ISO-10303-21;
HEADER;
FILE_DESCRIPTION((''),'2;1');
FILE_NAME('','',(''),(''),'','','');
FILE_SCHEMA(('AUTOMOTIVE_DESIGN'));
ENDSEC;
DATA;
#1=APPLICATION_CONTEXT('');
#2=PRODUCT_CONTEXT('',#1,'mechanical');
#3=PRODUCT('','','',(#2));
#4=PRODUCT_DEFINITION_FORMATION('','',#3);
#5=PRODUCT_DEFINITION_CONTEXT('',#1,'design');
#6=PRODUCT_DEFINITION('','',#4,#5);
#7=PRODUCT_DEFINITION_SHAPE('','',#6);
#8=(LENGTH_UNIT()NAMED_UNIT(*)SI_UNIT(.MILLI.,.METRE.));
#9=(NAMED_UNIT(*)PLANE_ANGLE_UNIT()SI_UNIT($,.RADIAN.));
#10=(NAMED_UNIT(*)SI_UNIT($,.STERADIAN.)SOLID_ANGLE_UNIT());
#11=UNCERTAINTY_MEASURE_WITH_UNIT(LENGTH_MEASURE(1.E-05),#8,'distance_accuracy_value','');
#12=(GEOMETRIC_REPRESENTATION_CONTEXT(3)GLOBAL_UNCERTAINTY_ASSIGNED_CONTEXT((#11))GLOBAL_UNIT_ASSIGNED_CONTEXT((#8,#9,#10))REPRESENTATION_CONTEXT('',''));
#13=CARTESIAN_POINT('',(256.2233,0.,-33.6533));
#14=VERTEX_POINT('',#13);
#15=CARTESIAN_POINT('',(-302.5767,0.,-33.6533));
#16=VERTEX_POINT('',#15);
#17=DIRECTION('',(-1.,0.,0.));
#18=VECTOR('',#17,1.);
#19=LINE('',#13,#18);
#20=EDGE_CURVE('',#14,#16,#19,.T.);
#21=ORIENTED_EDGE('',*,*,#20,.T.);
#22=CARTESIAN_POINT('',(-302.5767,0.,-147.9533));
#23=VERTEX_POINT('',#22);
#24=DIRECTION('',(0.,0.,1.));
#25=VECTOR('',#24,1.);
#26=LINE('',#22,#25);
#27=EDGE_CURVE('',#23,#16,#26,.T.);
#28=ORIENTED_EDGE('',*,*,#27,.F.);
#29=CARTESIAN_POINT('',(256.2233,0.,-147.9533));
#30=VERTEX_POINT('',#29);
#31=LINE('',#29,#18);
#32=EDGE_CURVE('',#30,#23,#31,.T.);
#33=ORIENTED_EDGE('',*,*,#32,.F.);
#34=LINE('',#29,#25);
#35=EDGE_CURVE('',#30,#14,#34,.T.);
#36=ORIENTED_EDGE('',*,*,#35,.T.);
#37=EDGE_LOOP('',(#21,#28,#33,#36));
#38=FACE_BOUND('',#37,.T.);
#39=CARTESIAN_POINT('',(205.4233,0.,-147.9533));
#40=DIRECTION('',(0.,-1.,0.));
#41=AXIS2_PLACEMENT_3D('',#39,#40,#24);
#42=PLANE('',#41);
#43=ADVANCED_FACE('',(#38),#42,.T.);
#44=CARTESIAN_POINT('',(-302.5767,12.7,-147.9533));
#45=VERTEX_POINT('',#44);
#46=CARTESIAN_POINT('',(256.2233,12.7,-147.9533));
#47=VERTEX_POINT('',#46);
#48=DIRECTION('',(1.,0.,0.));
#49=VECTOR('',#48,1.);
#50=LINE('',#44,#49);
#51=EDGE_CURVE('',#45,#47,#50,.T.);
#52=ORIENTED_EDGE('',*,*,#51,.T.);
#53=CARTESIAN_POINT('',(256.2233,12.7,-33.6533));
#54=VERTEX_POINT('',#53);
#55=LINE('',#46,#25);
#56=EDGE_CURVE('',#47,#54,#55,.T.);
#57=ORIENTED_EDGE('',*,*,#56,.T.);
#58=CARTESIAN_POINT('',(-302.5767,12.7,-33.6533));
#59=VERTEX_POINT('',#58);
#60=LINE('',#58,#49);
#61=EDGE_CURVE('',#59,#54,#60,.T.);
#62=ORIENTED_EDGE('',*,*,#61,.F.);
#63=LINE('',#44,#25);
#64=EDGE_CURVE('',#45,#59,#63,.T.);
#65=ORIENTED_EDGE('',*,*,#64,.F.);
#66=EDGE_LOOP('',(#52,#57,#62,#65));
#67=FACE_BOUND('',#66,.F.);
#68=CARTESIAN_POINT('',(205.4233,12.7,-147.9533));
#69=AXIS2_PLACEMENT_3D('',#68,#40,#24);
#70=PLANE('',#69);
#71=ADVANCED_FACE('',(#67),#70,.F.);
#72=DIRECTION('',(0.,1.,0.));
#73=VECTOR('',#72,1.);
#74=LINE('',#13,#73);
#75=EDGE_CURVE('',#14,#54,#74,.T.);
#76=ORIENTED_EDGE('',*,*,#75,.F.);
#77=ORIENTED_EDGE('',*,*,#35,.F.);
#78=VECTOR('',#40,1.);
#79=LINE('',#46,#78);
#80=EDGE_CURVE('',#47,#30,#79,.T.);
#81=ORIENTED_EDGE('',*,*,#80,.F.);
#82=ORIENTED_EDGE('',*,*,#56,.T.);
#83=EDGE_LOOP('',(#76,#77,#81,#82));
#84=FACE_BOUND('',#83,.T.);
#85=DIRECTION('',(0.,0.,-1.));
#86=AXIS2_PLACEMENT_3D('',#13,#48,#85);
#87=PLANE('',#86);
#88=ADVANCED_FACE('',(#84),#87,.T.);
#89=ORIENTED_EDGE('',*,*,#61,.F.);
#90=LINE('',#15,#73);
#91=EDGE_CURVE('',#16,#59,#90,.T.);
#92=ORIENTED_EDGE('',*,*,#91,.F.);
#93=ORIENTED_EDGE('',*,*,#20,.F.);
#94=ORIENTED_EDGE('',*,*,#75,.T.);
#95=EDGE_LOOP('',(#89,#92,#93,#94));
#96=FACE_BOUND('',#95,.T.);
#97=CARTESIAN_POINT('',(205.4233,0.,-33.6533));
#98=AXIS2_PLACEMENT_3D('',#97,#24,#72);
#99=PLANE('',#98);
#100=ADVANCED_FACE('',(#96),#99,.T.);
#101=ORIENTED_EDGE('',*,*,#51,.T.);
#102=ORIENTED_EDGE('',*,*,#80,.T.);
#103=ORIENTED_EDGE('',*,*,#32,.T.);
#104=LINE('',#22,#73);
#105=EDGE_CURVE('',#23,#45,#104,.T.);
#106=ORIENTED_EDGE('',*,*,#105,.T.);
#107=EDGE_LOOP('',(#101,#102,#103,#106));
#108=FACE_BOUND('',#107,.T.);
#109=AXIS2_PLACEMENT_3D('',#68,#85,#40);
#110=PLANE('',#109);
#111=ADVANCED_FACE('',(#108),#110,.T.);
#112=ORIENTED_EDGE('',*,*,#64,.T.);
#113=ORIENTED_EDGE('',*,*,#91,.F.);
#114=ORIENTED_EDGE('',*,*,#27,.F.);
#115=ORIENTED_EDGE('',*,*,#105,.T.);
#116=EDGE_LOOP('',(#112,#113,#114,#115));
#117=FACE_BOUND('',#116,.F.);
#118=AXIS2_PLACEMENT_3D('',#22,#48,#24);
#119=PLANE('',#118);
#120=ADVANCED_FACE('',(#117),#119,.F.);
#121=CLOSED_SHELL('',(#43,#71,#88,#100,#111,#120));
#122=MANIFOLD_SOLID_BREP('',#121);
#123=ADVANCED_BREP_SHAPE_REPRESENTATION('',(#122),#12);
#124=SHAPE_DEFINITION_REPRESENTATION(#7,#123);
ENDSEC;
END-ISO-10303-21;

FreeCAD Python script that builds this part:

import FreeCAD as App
import Part
import Sketcher
Q = App.Units.Quantity


def add_polygon(sketch, points):
    """Adds a closed chain of lines whose ends are joined by coincident constraints."""
    first, n = sketch.GeometryCount, len(points)
    for a, b in zip(points, points[1:] + points[:1]):
        sketch.addGeometry(Part.LineSegment(App.Vector(*a, 0), App.Vector(*b, 0)), False)
    for i in range(n):
        sketch.addConstraint(Sketcher.Constraint("Coincident", first + i, 2, first + (i + 1) % n, 1))

doc = App.newDocument("Part")
body = doc.addObject("PartDesign::Body", "Body")

sketch1 = doc.addObject("Sketcher::SketchObject", "Sketch")
body.addObject(sketch1)
sketch1.AttachmentSupport = (doc.XZ_Plane, [""])
sketch1.MapMode = "FlatFace"
add_polygon(sketch1, [(-302.5767, -147.9533), (-302.5767, -33.6533), (154.6233, -33.6533), (154.6233, -147.9533)])
sketch1.addConstraint([
    Sketcher.Constraint("Vertical", 0),
    Sketcher.Constraint("Horizontal", 1),
    Sketcher.Constraint("Vertical", 2),
    Sketcher.Constraint("Horizontal", 3),
    Sketcher.Constraint("DistanceX", 1, 1, 1, 2, Q("18 in")),
    Sketcher.Constraint("DistanceY", 0, 1, 0, 2, Q("4.5 in")),
    Sketcher.Constraint("DistanceX", 0, 2, -1, 1, 302.5767),
    Sketcher.Constraint("DistanceY", 0, 2, -1, 1, 33.6533),
])
pad1 = doc.addObject("PartDesign::Pad", "Pad")
body.addObject(pad1)
pad1.Profile = sketch1
pad1.Length = Q("0.5 in")
pad1.Reversed = True

sketch2 = doc.addObject("Sketcher::SketchObject", "Sketch001")
body.addObject(sketch2)
sketch2.AttachmentSupport = (doc.YZ_Plane, [""])
sketch2.MapMode = "FlatFace"
sketch2.AttachmentOffset = App.Placement(App.Vector(0, 0, 154.6233), App.Rotation())
add_polygon(sketch2, [(12.7, -147.9533), (12.7, -33.6533), (0, -33.6533), (0, -147.9533)])
sketch2.addConstraint([
    Sketcher.Constraint("Vertical", 0),
    Sketcher.Constraint("Horizontal", 1),
    Sketcher.Constraint("Vertical", 2),
    Sketcher.Constraint("Horizontal", 3),
    Sketcher.Constraint("PointOnObject", 1, 2, -2),
    Sketcher.Constraint("DistanceX", 1, 2, 1, 1, Q("0.5 in")),
    Sketcher.Constraint("DistanceY", 0, 1, 0, 2, Q("4.5 in")),
    Sketcher.Constraint("DistanceY", 0, 2, -1, 1, 33.6533),
])
pad2 = doc.addObject("PartDesign::Pad", "Pad001")
body.addObject(pad2)
pad2.Profile = sketch2
pad2.Length = Q("2 in")

sketch3 = doc.addObject("Sketcher::SketchObject", "Sketch002")
body.addObject(sketch3)
sketch3.AttachmentSupport = (doc.YZ_Plane, [""])
sketch3.MapMode = "FlatFace"
sketch3.AttachmentOffset = App.Placement(App.Vector(0, 0, 205.4233), App.Rotation())
add_polygon(sketch3, [(0, -147.9533), (12.7, -147.9533), (12.7, -33.6533), (0, -33.6533)])
sketch3.addConstraint([
    Sketcher.Constraint("Horizontal", 0),
    Sketcher.Constraint("Vertical", 1),
    Sketcher.Constraint("Horizontal", 2),
    Sketcher.Constraint("Vertical", 3),
    Sketcher.Constraint("PointOnObject", 2, 2, -2),
    Sketcher.Constraint("DistanceX", 0, 1, 0, 2, Q("0.5 in")),
    Sketcher.Constraint("DistanceY", 1, 1, 1, 2, Q("4.5 in")),
    Sketcher.Constraint("DistanceY", 0, 2, -1, 1, 147.9533),
])
pad3 = doc.addObject("PartDesign::Pad", "Pad002")
body.addObject(pad3)
pad3.Profile = sketch3
pad3.Length = Q("2 in")

doc.recompute()
